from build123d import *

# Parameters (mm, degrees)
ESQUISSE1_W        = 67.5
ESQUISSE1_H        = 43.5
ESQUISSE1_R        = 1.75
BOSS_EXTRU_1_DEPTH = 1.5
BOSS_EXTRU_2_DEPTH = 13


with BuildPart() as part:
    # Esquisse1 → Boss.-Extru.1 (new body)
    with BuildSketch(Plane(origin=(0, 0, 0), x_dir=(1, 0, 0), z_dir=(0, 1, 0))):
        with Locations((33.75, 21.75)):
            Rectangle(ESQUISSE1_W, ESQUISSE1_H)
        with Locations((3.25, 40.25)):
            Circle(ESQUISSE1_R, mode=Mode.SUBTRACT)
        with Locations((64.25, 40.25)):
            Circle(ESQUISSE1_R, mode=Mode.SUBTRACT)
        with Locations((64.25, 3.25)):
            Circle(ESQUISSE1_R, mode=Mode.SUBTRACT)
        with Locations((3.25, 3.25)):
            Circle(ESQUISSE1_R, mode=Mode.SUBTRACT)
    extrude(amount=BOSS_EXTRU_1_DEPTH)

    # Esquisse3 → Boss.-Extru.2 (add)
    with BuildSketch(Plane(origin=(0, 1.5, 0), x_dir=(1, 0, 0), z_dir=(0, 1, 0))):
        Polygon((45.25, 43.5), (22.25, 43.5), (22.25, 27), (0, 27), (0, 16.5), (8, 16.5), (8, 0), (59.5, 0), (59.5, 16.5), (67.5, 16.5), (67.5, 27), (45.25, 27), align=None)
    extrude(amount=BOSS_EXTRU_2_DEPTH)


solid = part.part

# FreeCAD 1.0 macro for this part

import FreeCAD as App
import Part
import Sketcher

doc = App.newDocument("Part")
body = doc.addObject("PartDesign::Body", "Body")

# Sketch on XZ plane
sketch1 = body.newObject("Sketcher::SketchObject", "Sketch")
sketch1.AttachmentSupport = (doc.getObject("XZ_Plane"), [""])
sketch1.MapMode = "FlatFace"
sketch1.addGeometry([
    Part.LineSegment(App.Vector(0, -43.5, 0), App.Vector(0, 0, 0)),  # 0
    Part.LineSegment(App.Vector(0, 0, 0), App.Vector(67.5, 0, 0)),  # 1
    Part.LineSegment(App.Vector(67.5, 0, 0), App.Vector(67.5, -43.5, 0)),  # 2
    Part.LineSegment(App.Vector(67.5, -43.5, 0), App.Vector(0, -43.5, 0)),  # 3
    Part.Circle(App.Vector(3.2, -3.2, 0), App.Vector(0, 0, 1), 1.8),  # 4
    Part.Circle(App.Vector(64.2, -3.2, 0), App.Vector(0, 0, 1), 1.8),  # 5
    Part.Circle(App.Vector(3.2, -40.2, 0), App.Vector(0, 0, 1), 1.8),  # 6
    Part.Circle(App.Vector(64.2, -40.2, 0), App.Vector(0, 0, 1), 1.8),  # 7
], False)
sketch1.addConstraint([
    Sketcher.Constraint("Coincident", 0, 2, 1, 1),
    Sketcher.Constraint("Coincident", 1, 2, 2, 1),
    Sketcher.Constraint("Coincident", 2, 2, 3, 1),
    Sketcher.Constraint("Coincident", 3, 2, 0, 1),
    Sketcher.Constraint("Vertical", 0),
    Sketcher.Constraint("Horizontal", 1),
    Sketcher.Constraint("Vertical", 2),
    Sketcher.Constraint("Horizontal", 3),
    Sketcher.Constraint("Coincident", 0, 2, -1, 1),
    Sketcher.Constraint("Equal", 4, 5),
    Sketcher.Constraint("Equal", 5, 6),
    Sketcher.Constraint("Equal", 6, 7),
    Sketcher.Constraint("Horizontal", 4, 3, 5, 3),
    Sketcher.Constraint("Horizontal", 6, 3, 7, 3),
    Sketcher.Constraint("Vertical", 4, 3, 6, 3),
    Sketcher.Constraint("Vertical", 5, 3, 7, 3),
    Sketcher.Constraint("Diameter", 4, 3.5),
    Sketcher.Constraint("DistanceX", 1, 1, 1, 2, 67.5),
    Sketcher.Constraint("DistanceY", 0, 1, 0, 2, 43.5),
    Sketcher.Constraint("DistanceX", 4, 3, 5, 3, 61.0),
    Sketcher.Constraint("DistanceY", 6, 3, 4, 3, 37.0),
    Sketcher.Constraint("DistanceX", -1, 1, 4, 3, 3.25),
    Sketcher.Constraint("DistanceY", 4, 3, -1, 1, 3.25),
])
pad1 = body.newObject("PartDesign::Pad", "Pad")
pad1.Profile = sketch1
pad1.Length = 1.5
pad1.Reversed = True

# Sketch on XZ plane
sketch2 = body.newObject("Sketcher::SketchObject", "Sketch001")
sketch2.AttachmentSupport = (doc.getObject("XZ_Plane"), [""])
sketch2.MapMode = "FlatFace"
sketch2.AttachmentOffset = App.Placement(App.Vector(0, 0, -1.5), App.Rotation())
sketch2.addGeometry([
    Part.LineSegment(App.Vector(45, -44, 0), App.Vector(22, -44, 0)),  # 0
    Part.LineSegment(App.Vector(22, -44, 0), App.Vector(22, -27, 0)),  # 1
    Part.LineSegment(App.Vector(22, -27, 0), App.Vector(0, -27, 0)),  # 2
    Part.LineSegment(App.Vector(0, -27, 0), App.Vector(0, -16, 0)),  # 3
    Part.LineSegment(App.Vector(0, -16, 0), App.Vector(8, -16, 0)),  # 4
    Part.LineSegment(App.Vector(8, -16, 0), App.Vector(8, 0, 0)),  # 5
    Part.LineSegment(App.Vector(8, 0, 0), App.Vector(60, 0, 0)),  # 6
    Part.LineSegment(App.Vector(60, 0, 0), App.Vector(60, -16, 0)),  # 7
    Part.LineSegment(App.Vector(60, -16, 0), App.Vector(68, -16, 0)),  # 8
    Part.LineSegment(App.Vector(68, -16, 0), App.Vector(68, -27, 0)),  # 9
    Part.LineSegment(App.Vector(68, -27, 0), App.Vector(45, -27, 0)),  # 10
    Part.LineSegment(App.Vector(45, -27, 0), App.Vector(45, -44, 0)),  # 11
], False)
sketch2.addConstraint([
    Sketcher.Constraint("Coincident", 0, 2, 1, 1),
    Sketcher.Constraint("Coincident", 1, 2, 2, 1),
    Sketcher.Constraint("Coincident", 2, 2, 3, 1),
    Sketcher.Constraint("Coincident", 3, 2, 4, 1),
    Sketcher.Constraint("Coincident", 4, 2, 5, 1),
    Sketcher.Constraint("Coincident", 5, 2, 6, 1),
    Sketcher.Constraint("Coincident", 6, 2, 7, 1),
    Sketcher.Constraint("Coincident", 7, 2, 8, 1),
    Sketcher.Constraint("Coincident", 8, 2, 9, 1),
    Sketcher.Constraint("Coincident", 9, 2, 10, 1),
    Sketcher.Constraint("Coincident", 10, 2, 11, 1),
    Sketcher.Constraint("Coincident", 11, 2, 0, 1),
    Sketcher.Constraint("Horizontal", 0),
    Sketcher.Constraint("Vertical", 1),
    Sketcher.Constraint("Horizontal", 2),
    Sketcher.Constraint("Vertical", 3),
    Sketcher.Constraint("Horizontal", 4),
    Sketcher.Constraint("Vertical", 5),
    Sketcher.Constraint("Horizontal", 6),
    Sketcher.Constraint("Vertical", 7),
    Sketcher.Constraint("Horizontal", 8),
    Sketcher.Constraint("Vertical", 9),
    Sketcher.Constraint("Horizontal", 10),
    Sketcher.Constraint("Vertical", 11),
    Sketcher.Constraint("PointOnObject", 2, 2, -2),
    Sketcher.Constraint("PointOnObject", 5, 2, -1),
    Sketcher.Constraint("Horizontal", 4, 2, 7, 2),
    Sketcher.Constraint("Horizontal", 2, 2, 9, 2),
    Sketcher.Constraint("Equal", 4, 8),
    Sketcher.Constraint("Equal", 2, 10),
    Sketcher.Constraint("Equal", 1, 5),
    Sketcher.Constraint("DistanceX", 0, 2, 0, 1, 23.0),
    Sketcher.Constraint("DistanceX", 4, 1, 4, 2, 8.0),
    Sketcher.Constraint("DistanceX", 6, 1, 6, 2, 51.5),
    Sketcher.Constraint("DistanceY", 1, 1, 1, 2, 16.5),
    Sketcher.Constraint("DistanceY", 3, 1, 3, 2, 10.5),
])
pad2 = body.newObject("PartDesign::Pad", "Pad001")
pad2.Profile = sketch2
pad2.Length = 13
pad2.Reversed = True

doc.recompute()
